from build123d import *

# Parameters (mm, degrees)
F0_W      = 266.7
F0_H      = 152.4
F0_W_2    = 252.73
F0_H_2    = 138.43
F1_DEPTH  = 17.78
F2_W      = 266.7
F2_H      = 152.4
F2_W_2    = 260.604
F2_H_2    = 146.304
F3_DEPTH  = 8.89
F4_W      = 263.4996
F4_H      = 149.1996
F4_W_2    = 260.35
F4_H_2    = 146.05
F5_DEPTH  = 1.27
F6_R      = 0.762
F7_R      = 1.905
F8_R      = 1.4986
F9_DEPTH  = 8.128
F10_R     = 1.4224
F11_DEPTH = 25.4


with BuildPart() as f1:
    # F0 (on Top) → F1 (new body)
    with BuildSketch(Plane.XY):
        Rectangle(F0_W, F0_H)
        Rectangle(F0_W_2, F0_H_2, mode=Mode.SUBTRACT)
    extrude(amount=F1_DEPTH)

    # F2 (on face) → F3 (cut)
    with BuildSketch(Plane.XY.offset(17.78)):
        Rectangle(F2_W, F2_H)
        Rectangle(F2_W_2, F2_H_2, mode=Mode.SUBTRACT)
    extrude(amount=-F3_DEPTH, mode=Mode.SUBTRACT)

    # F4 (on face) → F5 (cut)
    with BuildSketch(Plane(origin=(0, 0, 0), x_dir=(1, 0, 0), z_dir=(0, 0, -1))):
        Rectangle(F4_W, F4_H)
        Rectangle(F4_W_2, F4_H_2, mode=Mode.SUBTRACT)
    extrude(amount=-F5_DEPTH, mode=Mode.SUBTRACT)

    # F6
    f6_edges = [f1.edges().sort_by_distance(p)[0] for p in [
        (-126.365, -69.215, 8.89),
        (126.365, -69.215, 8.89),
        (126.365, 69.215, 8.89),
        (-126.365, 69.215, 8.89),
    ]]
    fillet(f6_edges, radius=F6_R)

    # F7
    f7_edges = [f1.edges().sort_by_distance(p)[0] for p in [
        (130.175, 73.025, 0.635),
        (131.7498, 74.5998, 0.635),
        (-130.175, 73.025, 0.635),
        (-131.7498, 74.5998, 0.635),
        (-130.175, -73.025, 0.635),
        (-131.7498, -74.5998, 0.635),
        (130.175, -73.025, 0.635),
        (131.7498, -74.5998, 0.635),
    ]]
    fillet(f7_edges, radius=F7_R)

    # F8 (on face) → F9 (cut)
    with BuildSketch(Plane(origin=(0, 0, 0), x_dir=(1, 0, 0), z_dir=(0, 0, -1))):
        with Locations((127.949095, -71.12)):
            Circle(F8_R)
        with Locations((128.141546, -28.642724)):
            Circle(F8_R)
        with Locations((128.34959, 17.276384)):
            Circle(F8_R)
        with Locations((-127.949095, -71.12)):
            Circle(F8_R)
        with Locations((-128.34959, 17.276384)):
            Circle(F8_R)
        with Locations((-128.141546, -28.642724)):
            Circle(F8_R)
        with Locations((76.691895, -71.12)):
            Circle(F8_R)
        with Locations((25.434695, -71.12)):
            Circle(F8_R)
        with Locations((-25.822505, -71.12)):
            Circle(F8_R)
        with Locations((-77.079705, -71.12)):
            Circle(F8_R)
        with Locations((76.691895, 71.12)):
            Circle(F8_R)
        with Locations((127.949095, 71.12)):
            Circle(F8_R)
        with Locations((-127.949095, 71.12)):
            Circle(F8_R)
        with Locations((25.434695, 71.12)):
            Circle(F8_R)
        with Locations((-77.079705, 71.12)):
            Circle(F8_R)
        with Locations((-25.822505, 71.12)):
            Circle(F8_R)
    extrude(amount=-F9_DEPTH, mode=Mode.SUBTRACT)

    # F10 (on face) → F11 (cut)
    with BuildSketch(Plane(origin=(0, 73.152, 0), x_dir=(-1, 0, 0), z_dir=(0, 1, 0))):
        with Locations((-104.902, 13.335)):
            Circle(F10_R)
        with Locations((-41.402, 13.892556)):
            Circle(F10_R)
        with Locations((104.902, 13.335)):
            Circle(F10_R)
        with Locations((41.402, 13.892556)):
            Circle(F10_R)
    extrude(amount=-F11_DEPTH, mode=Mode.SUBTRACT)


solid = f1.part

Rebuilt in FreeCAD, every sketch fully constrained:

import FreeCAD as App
import Part
import Sketcher
Q = App.Units.Quantity


def edges_at(feature, points):
    """Names of the edges that pass closest to the given points."""
    edges = feature.Shape.Edges
    near = lambda p: min(range(len(edges)), key=lambda i: edges[i].distToShape(Part.Vertex(*p))[0])
    return sorted({f"Edge{near(p) + 1}" for p in points})


def add_polygon(sketch, points):
    """Adds a closed chain of lines whose ends are joined by coincident constraints."""
    first, n = sketch.GeometryCount, len(points)
    for a, b in zip(points, points[1:] + points[:1]):
        sketch.addGeometry(Part.LineSegment(App.Vector(*a, 0), App.Vector(*b, 0)), False)
    for i in range(n):
        sketch.addConstraint(Sketcher.Constraint("Coincident", first + i, 2, first + (i + 1) % n, 1))

doc = App.newDocument("Part")
body = doc.addObject("PartDesign::Body", "Body")

# Sketch on XY plane
sketch1 = body.newObject("Sketcher::SketchObject", "Sketch")
sketch1.AttachmentSupport = (doc.getObject("XY_Plane"), [""])
sketch1.MapMode = "FlatFace"
add_polygon(sketch1, [(-133, 76), (-133, -76), (133, -76), (133, 76)])  # lines 0-3
add_polygon(sketch1, [(126, -69), (-126, -69), (-126, 69), (126, 69)])  # lines 4-7
sketch1.addConstraint(Sketcher.Constraint("Vertical", 0))
sketch1.addConstraint(Sketcher.Constraint("Horizontal", 1))
sketch1.addConstraint(Sketcher.Constraint("Vertical", 2))
sketch1.addConstraint(Sketcher.Constraint("Horizontal", 3))
sketch1.addConstraint(Sketcher.Constraint("Horizontal", 4))
sketch1.addConstraint(Sketcher.Constraint("Vertical", 5))
sketch1.addConstraint(Sketcher.Constraint("Horizontal", 6))
sketch1.addConstraint(Sketcher.Constraint("Vertical", 7))
sketch1.addConstraint(Sketcher.Constraint("Symmetric", 0, 2, 2, 2, -1, 1))
sketch1.addConstraint(Sketcher.Constraint("Symmetric", 4, 2, 6, 2, -1, 1))
sketch1.addConstraint(Sketcher.Constraint("DistanceY", 0, 2, 0, 1, Q("6 in")))
sketch1.addConstraint(Sketcher.Constraint("DistanceX", 1, 1, 1, 2, Q("10.5 in")))
sketch1.addConstraint(Sketcher.Constraint("DistanceX", 4, 2, 4, 1, Q("9.95 in")))
sketch1.addConstraint(Sketcher.Constraint("DistanceY", 5, 1, 5, 2, Q("5.45 in")))
pad1 = body.newObject("PartDesign::Pad", "Pad")
pad1.Profile = sketch1
pad1.Length = Q("0.7 in")

# Sketch on XY plane
sketch2 = body.newObject("Sketcher::SketchObject", "Sketch001")
sketch2.AttachmentSupport = (doc.getObject("XY_Plane"), [""])
sketch2.MapMode = "FlatFace"
sketch2.AttachmentOffset = App.Placement(App.Vector(0, 0, 0.7 * 25.4), App.Rotation())
add_polygon(sketch2, [(-133, 76), (-133, -76), (133, -76), (133, 76)])  # lines 0-3
add_polygon(sketch2, [(130, -73), (-130, -73), (-130, 73), (130, 73)])  # lines 4-7
sketch2.addConstraint(Sketcher.Constraint("Vertical", 0))
sketch2.addConstraint(Sketcher.Constraint("Horizontal", 1))
sketch2.addConstraint(Sketcher.Constraint("Vertical", 2))
sketch2.addConstraint(Sketcher.Constraint("Horizontal", 3))
sketch2.addConstraint(Sketcher.Constraint("Horizontal", 4))
sketch2.addConstraint(Sketcher.Constraint("Vertical", 5))
sketch2.addConstraint(Sketcher.Constraint("Horizontal", 6))
sketch2.addConstraint(Sketcher.Constraint("Vertical", 7))
sketch2.addConstraint(Sketcher.Constraint("Symmetric", 0, 2, 2, 2, -1, 1))
sketch2.addConstraint(Sketcher.Constraint("Symmetric", 4, 2, 6, 2, -1, 1))
sketch2.addConstraint(Sketcher.Constraint("DistanceY", 0, 2, 0, 1, Q("6 in")))
sketch2.addConstraint(Sketcher.Constraint("DistanceX", 1, 1, 1, 2, Q("10.5 in")))
sketch2.addConstraint(Sketcher.Constraint("DistanceX", 4, 2, 4, 1, Q("10.26 in")))
sketch2.addConstraint(Sketcher.Constraint("DistanceY", 5, 1, 5, 2, Q("5.76 in")))
pocket1 = body.newObject("PartDesign::Pocket", "Pocket")
pocket1.Profile = sketch2
pocket1.Length = Q("0.35 in")

# Sketch on XY plane
sketch3 = body.newObject("Sketcher::SketchObject", "Sketch002")
sketch3.AttachmentSupport = (doc.getObject("XY_Plane"), [""])
sketch3.MapMode = "FlatFace"
add_polygon(sketch3, [(-132, -75), (-132, 75), (132, 75), (132, -75)])  # lines 0-3
add_polygon(sketch3, [(130, 73), (-130, 73), (-130, -73), (130, -73)])  # lines 4-7
sketch3.addConstraint(Sketcher.Constraint("Vertical", 0))
sketch3.addConstraint(Sketcher.Constraint("Horizontal", 1))
sketch3.addConstraint(Sketcher.Constraint("Vertical", 2))
sketch3.addConstraint(Sketcher.Constraint("Horizontal", 3))
sketch3.addConstraint(Sketcher.Constraint("Horizontal", 4))
sketch3.addConstraint(Sketcher.Constraint("Vertical", 5))
sketch3.addConstraint(Sketcher.Constraint("Horizontal", 6))
sketch3.addConstraint(Sketcher.Constraint("Vertical", 7))
sketch3.addConstraint(Sketcher.Constraint("Symmetric", 0, 2, 2, 2, -1, 1))
sketch3.addConstraint(Sketcher.Constraint("Symmetric", 4, 2, 6, 2, -1, 1))
sketch3.addConstraint(Sketcher.Constraint("DistanceX", 4, 2, 4, 1, Q("10.25 in")))
sketch3.addConstraint(Sketcher.Constraint("DistanceY", 5, 2, 5, 1, Q("5.75 in")))
sketch3.addConstraint(Sketcher.Constraint("DistanceX", 1, 1, 1, 2, Q("10.374 in")))
sketch3.addConstraint(Sketcher.Constraint("DistanceY", 0, 1, 0, 2, Q("5.874 in")))
pocket2 = body.newObject("PartDesign::Pocket", "Pocket001")
pocket2.Profile = sketch3
pocket2.Length = Q("0.05 in")
pocket2.Reversed = True
doc.recompute()

fillet = body.newObject("PartDesign::Fillet", "Fillet")
fillet.Base = (pocket2, edges_at(pocket2, [
    (-126.365, -69.215, 8.89),
    (126.365, -69.215, 8.89),
    (126.365, 69.215, 8.89),
    (-126.365, 69.215, 8.89),
]))
fillet.Radius = Q("0.03 in")
doc.recompute()

fillet2 = body.newObject("PartDesign::Fillet", "Fillet001")
fillet2.Base = (fillet, edges_at(fillet, [
    (130.175, 73.025, 0.635),
    (131.75, 74.6, 0.635),
    (-130.175, 73.025, 0.635),
    (-131.75, 74.6, 0.635),
    (-130.175, -73.025, 0.635),
    (-131.75, -74.6, 0.635),
    (130.175, -73.025, 0.635),
    (131.75, -74.6, 0.635),
]))
fillet2.Radius = Q("0.075 in")

# Sketch on XY plane
sketch4 = body.newObject("Sketcher::SketchObject", "Sketch003")
sketch4.AttachmentSupport = (doc.getObject("XY_Plane"), [""])
sketch4.MapMode = "FlatFace"
sketch4.addGeometry(Part.Circle(App.Vector(127.9, 71.1, 0), App.Vector(0, 0, 1), 1.5), False)
sketch4.addGeometry(Part.Circle(App.Vector(128.1, 28.6, 0), App.Vector(0, 0, 1), 1.5), False)
sketch4.addGeometry(Part.Circle(App.Vector(128.3, -17.3, 0), App.Vector(0, 0, 1), 1.5), False)
sketch4.addGeometry(Part.Circle(App.Vector(-127.9, 71.1, 0), App.Vector(0, 0, 1), 1.5), False)
sketch4.addGeometry(Part.Circle(App.Vector(-128.3, -17.3, 0), App.Vector(0, 0, 1), 1.5), False)
sketch4.addGeometry(Part.Circle(App.Vector(-128.1, 28.6, 0), App.Vector(0, 0, 1), 1.5), False)
sketch4.addGeometry(Part.Circle(App.Vector(76.7, 71.1, 0), App.Vector(0, 0, 1), 1.5), False)
sketch4.addGeometry(Part.Circle(App.Vector(25.4, 71.1, 0), App.Vector(0, 0, 1), 1.5), False)
sketch4.addGeometry(Part.Circle(App.Vector(-25.8, 71.1, 0), App.Vector(0, 0, 1), 1.5), False)
sketch4.addGeometry(Part.Circle(App.Vector(-77.1, 71.1, 0), App.Vector(0, 0, 1), 1.5), False)
sketch4.addGeometry(Part.Circle(App.Vector(76.7, -71.1, 0), App.Vector(0, 0, 1), 1.5), False)
sketch4.addGeometry(Part.Circle(App.Vector(127.9, -71.1, 0), App.Vector(0, 0, 1), 1.5), False)
sketch4.addGeometry(Part.Circle(App.Vector(-127.9, -71.1, 0), App.Vector(0, 0, 1), 1.5), False)
sketch4.addGeometry(Part.Circle(App.Vector(25.4, -71.1, 0), App.Vector(0, 0, 1), 1.5), False)
sketch4.addGeometry(Part.Circle(App.Vector(-77.1, -71.1, 0), App.Vector(0, 0, 1), 1.5), False)
sketch4.addGeometry(Part.Circle(App.Vector(-25.8, -71.1, 0), App.Vector(0, 0, 1), 1.5), False)
sketch4.addConstraint(Sketcher.Constraint("Equal", 0, 1))
sketch4.addConstraint(Sketcher.Constraint("Equal", 1, 2))
sketch4.addConstraint(Sketcher.Constraint("Equal", 2, 3))
sketch4.addConstraint(Sketcher.Constraint("Equal", 3, 4))
sketch4.addConstraint(Sketcher.Constraint("Equal", 4, 5))
sketch4.addConstraint(Sketcher.Constraint("Equal", 5, 6))
sketch4.addConstraint(Sketcher.Constraint("Equal", 6, 7))
sketch4.addConstraint(Sketcher.Constraint("Equal", 7, 8))
sketch4.addConstraint(Sketcher.Constraint("Equal", 8, 9))
sketch4.addConstraint(Sketcher.Constraint("Equal", 9, 10))
sketch4.addConstraint(Sketcher.Constraint("Equal", 10, 11))
sketch4.addConstraint(Sketcher.Constraint("Equal", 11, 12))
sketch4.addConstraint(Sketcher.Constraint("Equal", 12, 13))
sketch4.addConstraint(Sketcher.Constraint("Equal", 13, 14))
sketch4.addConstraint(Sketcher.Constraint("Equal", 14, 15))
sketch4.addConstraint(Sketcher.Constraint("Symmetric", 3, 3, 11, 3, -1, 1))
sketch4.addConstraint(Sketcher.Constraint("Symmetric", 0, 3, 12, 3, -1, 1))
sketch4.addConstraint(Sketcher.Constraint("Symmetric", 0, 3, 3, 3, -2))
sketch4.addConstraint(Sketcher.Constraint("Symmetric", 2, 3, 4, 3, -2))
sketch4.addConstraint(Sketcher.Constraint("Symmetric", 1, 3, 5, 3, -2))
sketch4.addConstraint(Sketcher.Constraint("Symmetric", 6, 3, 10, 3, -1))
sketch4.addConstraint(Sketcher.Constraint("Symmetric", 7, 3, 13, 3, -1))
sketch4.addConstraint(Sketcher.Constraint("Symmetric", 9, 3, 14, 3, -1))
sketch4.addConstraint(Sketcher.Constraint("Symmetric", 8, 3, 15, 3, -1))
sketch4.addConstraint(Sketcher.Constraint("Horizontal", 3, 3, 6, 3))
sketch4.addConstraint(Sketcher.Constraint("Horizontal", 6, 3, 7, 3))
sketch4.addConstraint(Sketcher.Constraint("Horizontal", 7, 3, 8, 3))
sketch4.addConstraint(Sketcher.Constraint("Horizontal", 8, 3, 9, 3))
sketch4.addConstraint(Sketcher.Constraint("Diameter", 0, Q("0.118 in")))
sketch4.addConstraint(Sketcher.Constraint("DistanceY", -1, 1, 0, 3, Q("2.8 in")))
sketch4.addConstraint(Sketcher.Constraint("DistanceX", 6, 3, 0, 3, Q("2.018 in")))
sketch4.addConstraint(Sketcher.Constraint("DistanceX", 7, 3, 6, 3, Q("2.018 in")))
sketch4.addConstraint(Sketcher.Constraint("DistanceX", 8, 3, 7, 3, Q("2.018 in")))
sketch4.addConstraint(Sketcher.Constraint("DistanceX", 9, 3, 8, 3, Q("2.018 in")))
sketch4.addConstraint(Sketcher.Constraint("DistanceX", -1, 1, 2, 3, 128.34959))
sketch4.addConstraint(Sketcher.Constraint("DistanceX", 0, 3, 1, 3, 0.192451))
sketch4.addConstraint(Sketcher.Constraint("DistanceX", 3, 3, 0, 3, 255.89819))
sketch4.addConstraint(Sketcher.Constraint("DistanceY", -1, 1, 1, 3, 28.642724))
sketch4.addConstraint(Sketcher.Constraint("DistanceY", 2, 3, -1, 1, 17.276384))
pocket3 = body.newObject("PartDesign::Pocket", "Pocket002")
pocket3.Profile = sketch4
pocket3.Length = Q("0.32 in")
pocket3.Reversed = True

# Sketch on XZ plane
sketch5 = body.newObject("Sketcher::SketchObject", "Sketch004")
sketch5.AttachmentSupport = (doc.getObject("XZ_Plane"), [""])
sketch5.MapMode = "FlatFace"
sketch5.AttachmentOffset = App.Placement(App.Vector(0, 0, -2.88 * 25.4), App.Rotation())
sketch5.addGeometry(Part.Circle(App.Vector(104.9, 13.3, 0), App.Vector(0, 0, 1), 1.4), False)
sketch5.addGeometry(Part.Circle(App.Vector(41.4, 13.9, 0), App.Vector(0, 0, 1), 1.4), False)
sketch5.addGeometry(Part.Circle(App.Vector(-104.9, 13.3, 0), App.Vector(0, 0, 1), 1.4), False)
sketch5.addGeometry(Part.Circle(App.Vector(-41.4, 13.9, 0), App.Vector(0, 0, 1), 1.4), False)
sketch5.addConstraint(Sketcher.Constraint("Equal", 0, 1))
sketch5.addConstraint(Sketcher.Constraint("Equal", 1, 2))
sketch5.addConstraint(Sketcher.Constraint("Equal", 2, 3))
sketch5.addConstraint(Sketcher.Constraint("Symmetric", 0, 3, 2, 3, -2))
sketch5.addConstraint(Sketcher.Constraint("Symmetric", 1, 3, 3, 3, -2))
sketch5.addConstraint(Sketcher.Constraint("Diameter", 0, Q("0.112 in")))
sketch5.addConstraint(Sketcher.Constraint("DistanceX", 1, 3, 0, 3, Q("2.5 in")))
sketch5.addConstraint(Sketcher.Constraint("DistanceX", -1, 1, 0, 3, Q("4.13 in")))
sketch5.addConstraint(Sketcher.Constraint("DistanceY", -1, 1, 0, 3, Q("0.525 in")))
sketch5.addConstraint(Sketcher.Constraint("DistanceY", -1, 1, 1, 3, 13.892556))
pocket4 = body.newObject("PartDesign::Pocket", "Pocket003")
pocket4.Profile = sketch5
pocket4.Length = Q("1 in")
pocket4.Reversed = True

doc.recompute()
